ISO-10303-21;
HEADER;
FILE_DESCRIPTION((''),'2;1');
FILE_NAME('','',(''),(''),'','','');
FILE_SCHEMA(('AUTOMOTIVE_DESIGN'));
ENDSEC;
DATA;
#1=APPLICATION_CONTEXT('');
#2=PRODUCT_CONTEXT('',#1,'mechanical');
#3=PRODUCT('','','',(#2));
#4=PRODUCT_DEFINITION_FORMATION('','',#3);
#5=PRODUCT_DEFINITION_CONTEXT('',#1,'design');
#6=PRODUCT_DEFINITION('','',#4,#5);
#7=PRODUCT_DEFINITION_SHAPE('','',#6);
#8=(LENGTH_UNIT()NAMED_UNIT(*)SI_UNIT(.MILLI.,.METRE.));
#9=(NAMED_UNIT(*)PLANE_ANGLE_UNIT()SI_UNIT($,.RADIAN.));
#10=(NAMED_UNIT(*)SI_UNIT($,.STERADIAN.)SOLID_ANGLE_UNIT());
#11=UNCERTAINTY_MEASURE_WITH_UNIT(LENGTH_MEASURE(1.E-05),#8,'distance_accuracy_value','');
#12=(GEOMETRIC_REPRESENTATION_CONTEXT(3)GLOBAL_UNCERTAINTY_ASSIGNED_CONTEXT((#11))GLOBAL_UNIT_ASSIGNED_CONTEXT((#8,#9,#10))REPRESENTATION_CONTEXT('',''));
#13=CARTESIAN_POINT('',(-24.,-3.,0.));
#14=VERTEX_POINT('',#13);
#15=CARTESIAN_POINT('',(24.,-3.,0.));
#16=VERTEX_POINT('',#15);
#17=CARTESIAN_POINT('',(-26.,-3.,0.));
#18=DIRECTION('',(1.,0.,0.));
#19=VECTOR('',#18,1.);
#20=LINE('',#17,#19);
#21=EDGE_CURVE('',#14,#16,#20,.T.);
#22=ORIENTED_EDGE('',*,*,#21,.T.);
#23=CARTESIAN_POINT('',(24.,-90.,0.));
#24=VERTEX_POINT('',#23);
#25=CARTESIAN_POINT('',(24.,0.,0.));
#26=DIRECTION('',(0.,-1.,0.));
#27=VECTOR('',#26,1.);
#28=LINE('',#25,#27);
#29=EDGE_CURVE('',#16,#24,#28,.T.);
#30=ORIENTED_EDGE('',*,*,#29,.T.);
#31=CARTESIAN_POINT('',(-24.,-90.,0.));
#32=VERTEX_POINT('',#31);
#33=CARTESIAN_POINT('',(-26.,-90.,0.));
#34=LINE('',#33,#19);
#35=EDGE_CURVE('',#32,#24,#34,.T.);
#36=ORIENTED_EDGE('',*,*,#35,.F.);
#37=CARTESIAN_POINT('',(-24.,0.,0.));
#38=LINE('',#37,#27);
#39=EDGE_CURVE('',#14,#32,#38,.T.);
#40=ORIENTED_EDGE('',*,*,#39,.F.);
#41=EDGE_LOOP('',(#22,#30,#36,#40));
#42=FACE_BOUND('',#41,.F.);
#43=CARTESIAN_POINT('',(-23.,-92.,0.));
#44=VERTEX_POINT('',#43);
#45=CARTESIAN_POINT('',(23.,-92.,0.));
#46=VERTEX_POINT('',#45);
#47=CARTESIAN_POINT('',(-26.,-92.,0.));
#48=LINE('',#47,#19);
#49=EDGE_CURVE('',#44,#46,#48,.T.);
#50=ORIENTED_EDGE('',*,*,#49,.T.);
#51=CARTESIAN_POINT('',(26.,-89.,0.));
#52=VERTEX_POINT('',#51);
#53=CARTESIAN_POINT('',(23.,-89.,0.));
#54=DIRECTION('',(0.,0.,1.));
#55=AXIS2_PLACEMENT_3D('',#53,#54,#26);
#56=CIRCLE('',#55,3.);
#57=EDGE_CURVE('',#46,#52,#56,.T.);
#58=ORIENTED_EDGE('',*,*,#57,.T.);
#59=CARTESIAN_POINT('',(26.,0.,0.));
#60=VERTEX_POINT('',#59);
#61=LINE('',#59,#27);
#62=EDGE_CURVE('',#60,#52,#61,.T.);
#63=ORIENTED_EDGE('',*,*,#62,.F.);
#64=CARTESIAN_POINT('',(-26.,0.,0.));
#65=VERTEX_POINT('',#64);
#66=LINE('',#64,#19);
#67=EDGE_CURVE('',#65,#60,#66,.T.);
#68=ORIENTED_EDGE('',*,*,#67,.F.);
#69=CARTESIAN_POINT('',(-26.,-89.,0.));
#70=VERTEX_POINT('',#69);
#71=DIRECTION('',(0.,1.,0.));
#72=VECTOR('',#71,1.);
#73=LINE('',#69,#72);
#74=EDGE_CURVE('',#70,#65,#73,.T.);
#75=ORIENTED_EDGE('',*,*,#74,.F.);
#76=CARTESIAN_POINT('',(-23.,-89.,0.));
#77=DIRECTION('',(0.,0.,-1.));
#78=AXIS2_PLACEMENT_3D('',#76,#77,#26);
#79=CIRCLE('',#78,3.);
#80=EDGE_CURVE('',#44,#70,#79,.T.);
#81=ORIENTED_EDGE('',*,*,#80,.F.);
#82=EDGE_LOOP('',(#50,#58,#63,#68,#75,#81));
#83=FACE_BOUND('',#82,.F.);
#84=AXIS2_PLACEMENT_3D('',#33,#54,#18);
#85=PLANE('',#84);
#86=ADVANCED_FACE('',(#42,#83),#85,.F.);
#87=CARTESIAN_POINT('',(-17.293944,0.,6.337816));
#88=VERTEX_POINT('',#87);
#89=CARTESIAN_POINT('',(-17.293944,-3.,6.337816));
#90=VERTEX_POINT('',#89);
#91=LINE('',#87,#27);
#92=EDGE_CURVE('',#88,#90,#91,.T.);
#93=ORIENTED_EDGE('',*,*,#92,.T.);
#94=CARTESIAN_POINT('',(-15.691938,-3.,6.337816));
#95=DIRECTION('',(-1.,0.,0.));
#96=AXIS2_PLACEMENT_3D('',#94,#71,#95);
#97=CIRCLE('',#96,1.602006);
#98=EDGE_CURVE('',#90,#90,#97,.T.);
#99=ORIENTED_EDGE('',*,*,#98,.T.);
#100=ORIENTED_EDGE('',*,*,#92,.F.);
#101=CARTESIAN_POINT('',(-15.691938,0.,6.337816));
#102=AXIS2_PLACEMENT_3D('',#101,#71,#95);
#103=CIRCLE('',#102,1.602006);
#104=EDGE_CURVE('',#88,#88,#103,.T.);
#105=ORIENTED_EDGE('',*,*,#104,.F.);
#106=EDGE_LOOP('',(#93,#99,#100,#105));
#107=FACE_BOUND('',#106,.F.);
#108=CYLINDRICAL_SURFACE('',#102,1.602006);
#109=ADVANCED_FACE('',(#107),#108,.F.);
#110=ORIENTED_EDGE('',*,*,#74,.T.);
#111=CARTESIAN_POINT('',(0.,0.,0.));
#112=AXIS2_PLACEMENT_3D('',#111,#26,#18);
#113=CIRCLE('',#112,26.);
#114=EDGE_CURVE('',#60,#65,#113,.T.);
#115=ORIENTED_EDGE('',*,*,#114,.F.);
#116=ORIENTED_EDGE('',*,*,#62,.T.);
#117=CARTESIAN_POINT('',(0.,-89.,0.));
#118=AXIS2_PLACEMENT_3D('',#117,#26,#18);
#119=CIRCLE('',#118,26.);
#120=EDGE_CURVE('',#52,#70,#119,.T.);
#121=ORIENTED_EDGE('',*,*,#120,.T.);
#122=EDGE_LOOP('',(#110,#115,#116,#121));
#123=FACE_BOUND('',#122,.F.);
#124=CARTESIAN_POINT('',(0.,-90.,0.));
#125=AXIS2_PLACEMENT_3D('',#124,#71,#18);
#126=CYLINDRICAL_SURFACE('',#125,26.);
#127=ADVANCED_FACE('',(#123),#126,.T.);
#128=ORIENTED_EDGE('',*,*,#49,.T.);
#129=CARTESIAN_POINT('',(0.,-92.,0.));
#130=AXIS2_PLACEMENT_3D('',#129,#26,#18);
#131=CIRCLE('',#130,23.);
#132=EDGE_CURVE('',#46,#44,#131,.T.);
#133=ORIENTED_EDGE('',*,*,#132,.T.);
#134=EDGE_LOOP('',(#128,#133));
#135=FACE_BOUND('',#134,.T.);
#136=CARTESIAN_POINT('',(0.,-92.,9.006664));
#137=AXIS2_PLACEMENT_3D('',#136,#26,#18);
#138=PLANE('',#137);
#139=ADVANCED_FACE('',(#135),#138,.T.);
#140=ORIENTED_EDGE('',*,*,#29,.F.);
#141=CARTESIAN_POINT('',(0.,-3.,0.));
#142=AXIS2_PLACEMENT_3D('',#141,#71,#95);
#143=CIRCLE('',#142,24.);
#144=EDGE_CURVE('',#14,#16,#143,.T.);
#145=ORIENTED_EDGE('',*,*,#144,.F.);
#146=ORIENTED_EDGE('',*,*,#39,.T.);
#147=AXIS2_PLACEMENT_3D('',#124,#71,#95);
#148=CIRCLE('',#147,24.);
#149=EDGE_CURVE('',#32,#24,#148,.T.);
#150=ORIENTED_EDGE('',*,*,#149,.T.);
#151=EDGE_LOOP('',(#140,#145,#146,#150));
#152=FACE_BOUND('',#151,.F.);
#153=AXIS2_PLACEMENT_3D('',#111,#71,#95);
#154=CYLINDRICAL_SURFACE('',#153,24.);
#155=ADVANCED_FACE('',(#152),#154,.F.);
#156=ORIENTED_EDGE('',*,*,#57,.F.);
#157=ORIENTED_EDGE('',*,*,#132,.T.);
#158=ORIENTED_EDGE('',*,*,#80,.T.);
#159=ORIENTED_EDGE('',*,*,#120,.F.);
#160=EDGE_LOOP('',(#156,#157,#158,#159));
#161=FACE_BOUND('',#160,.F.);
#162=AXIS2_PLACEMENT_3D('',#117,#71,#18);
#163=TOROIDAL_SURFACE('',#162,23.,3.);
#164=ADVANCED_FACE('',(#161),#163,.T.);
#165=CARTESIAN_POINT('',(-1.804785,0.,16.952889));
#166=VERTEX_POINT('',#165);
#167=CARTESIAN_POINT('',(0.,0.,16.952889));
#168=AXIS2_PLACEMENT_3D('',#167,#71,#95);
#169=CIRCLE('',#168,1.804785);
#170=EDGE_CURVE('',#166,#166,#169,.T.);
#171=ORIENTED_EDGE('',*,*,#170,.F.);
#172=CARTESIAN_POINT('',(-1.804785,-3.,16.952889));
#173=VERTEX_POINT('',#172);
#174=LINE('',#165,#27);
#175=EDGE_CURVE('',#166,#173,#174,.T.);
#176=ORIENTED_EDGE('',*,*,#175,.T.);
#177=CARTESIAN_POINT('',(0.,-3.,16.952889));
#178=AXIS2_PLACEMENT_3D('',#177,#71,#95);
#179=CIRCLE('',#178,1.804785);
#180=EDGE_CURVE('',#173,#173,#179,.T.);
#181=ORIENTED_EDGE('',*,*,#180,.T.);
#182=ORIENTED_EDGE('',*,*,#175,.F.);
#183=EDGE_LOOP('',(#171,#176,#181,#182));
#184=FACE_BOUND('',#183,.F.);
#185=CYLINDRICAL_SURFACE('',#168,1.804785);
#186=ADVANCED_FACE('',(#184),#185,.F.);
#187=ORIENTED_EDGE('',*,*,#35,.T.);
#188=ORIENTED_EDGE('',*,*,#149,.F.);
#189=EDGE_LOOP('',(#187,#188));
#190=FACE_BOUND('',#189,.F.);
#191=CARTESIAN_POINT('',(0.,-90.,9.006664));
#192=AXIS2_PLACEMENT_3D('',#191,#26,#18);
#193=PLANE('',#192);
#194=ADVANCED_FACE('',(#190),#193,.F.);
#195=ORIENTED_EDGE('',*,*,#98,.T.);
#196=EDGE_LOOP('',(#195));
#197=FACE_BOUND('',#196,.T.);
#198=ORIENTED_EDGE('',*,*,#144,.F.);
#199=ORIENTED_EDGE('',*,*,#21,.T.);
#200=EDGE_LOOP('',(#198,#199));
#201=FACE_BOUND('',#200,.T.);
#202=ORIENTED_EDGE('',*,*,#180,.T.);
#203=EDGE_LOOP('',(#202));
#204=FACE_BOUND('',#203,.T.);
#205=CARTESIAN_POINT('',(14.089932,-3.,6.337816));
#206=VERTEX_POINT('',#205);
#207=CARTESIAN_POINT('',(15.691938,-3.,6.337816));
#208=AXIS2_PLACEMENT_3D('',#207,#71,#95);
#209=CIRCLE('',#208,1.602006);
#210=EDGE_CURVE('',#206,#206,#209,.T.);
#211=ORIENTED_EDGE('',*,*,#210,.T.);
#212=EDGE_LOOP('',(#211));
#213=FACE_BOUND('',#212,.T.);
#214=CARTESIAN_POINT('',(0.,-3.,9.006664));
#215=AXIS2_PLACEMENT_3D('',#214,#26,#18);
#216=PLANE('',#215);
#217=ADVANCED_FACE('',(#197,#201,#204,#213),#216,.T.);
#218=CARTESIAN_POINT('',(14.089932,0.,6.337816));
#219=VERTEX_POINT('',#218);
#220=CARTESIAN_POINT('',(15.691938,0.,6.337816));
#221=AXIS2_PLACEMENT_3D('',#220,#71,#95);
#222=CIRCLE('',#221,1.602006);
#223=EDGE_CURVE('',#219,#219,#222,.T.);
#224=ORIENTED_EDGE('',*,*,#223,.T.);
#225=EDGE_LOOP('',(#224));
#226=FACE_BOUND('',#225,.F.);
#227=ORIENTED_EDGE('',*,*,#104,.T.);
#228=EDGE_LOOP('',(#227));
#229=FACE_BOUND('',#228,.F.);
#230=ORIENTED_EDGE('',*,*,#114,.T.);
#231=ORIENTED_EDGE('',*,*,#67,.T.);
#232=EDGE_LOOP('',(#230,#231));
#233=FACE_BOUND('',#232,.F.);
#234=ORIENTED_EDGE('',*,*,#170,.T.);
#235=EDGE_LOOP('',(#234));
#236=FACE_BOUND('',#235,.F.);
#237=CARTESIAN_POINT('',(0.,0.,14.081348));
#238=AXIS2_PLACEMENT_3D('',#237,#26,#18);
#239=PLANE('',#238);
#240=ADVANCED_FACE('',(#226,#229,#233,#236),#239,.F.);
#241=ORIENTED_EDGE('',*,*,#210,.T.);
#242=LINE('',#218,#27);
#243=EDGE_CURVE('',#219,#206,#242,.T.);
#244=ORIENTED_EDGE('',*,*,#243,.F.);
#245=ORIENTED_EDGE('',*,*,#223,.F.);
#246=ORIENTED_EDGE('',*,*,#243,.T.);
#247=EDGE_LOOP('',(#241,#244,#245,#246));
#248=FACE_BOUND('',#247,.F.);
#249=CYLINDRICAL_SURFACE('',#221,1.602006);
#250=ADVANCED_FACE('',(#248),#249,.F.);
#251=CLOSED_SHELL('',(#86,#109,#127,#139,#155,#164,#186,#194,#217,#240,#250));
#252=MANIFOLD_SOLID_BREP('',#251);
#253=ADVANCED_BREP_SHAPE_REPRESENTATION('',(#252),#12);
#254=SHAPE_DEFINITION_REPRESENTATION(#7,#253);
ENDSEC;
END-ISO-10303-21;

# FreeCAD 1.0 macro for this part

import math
import FreeCAD as App
import Part
import Sketcher
from FreeCAD import Vector


def edges_at(feature, points):
    """Names of the edges that pass closest to the given points."""
    edges = feature.Shape.Edges
    near = lambda p: min(range(len(edges)), key=lambda i: edges[i].distToShape(Part.Vertex(*p))[0])
    return sorted({f"Edge{near(p) + 1}" for p in points})

doc = App.newDocument("Part")
body = doc.addObject("PartDesign::Body", "Body")

# Sketch on XZ plane
sketch1 = body.newObject("Sketcher::SketchObject", "Sketch")
sketch1.AttachmentSupport = (doc.getObject("XZ_Plane"), [""])
sketch1.MapMode = "FlatFace"
sketch1.addGeometry(Part.LineSegment(Vector(24, 0, 0), Vector(26, 0, 0)), False)
sketch1.addGeometry(Part.ArcOfCircle(Part.Circle(Vector(0, 0, 0), Vector(0, 0, 1), 26), math.radians(0), math.radians(180)), False)
sketch1.addGeometry(Part.LineSegment(Vector(-26, 0, 0), Vector(-24, 0, 0)), False)
sketch1.addGeometry(Part.ArcOfCircle(Part.Circle(Vector(0, 0, 0), Vector(0, 0, 1), 24), math.radians(0), math.radians(180)), False)
sketch1.addConstraint(Sketcher.Constraint("Coincident", 0, 2, 1, 1))
sketch1.addConstraint(Sketcher.Constraint("Coincident", 1, 2, 2, 1))
sketch1.addConstraint(Sketcher.Constraint("Coincident", 2, 2, 3, 2))
sketch1.addConstraint(Sketcher.Constraint("Coincident", 3, 1, 0, 1))
sketch1.addConstraint(Sketcher.Constraint("Horizontal", 0))
sketch1.addConstraint(Sketcher.Constraint("Horizontal", 2))
sketch1.addConstraint(Sketcher.Constraint("Coincident", 1, 3, -1, 1))
sketch1.addConstraint(Sketcher.Constraint("Coincident", 3, 3, -1, 1))
sketch1.addConstraint(Sketcher.Constraint("PointOnObject", 0, 2, -1))
sketch1.addConstraint(Sketcher.Constraint("PointOnObject", 1, 2, -1))
sketch1.addConstraint(Sketcher.Constraint("Radius", 1, 26.0))
sketch1.addConstraint(Sketcher.Constraint("Radius", 3, 24.0))
pad1 = body.newObject("PartDesign::Pad", "Pad")
pad1.Profile = sketch1
pad1.Length = 90

# Sketch on XZ plane
sketch2 = body.newObject("Sketcher::SketchObject", "Sketch001")
sketch2.AttachmentSupport = (doc.getObject("XZ_Plane"), [""])
sketch2.MapMode = "FlatFace"
sketch2.AttachmentOffset = App.Placement(Vector(0, 0, 90), App.Rotation())
sketch2.addGeometry(Part.LineSegment(Vector(-26, 0, 0), Vector(26, 0, 0)), False)
sketch2.addGeometry(Part.ArcOfCircle(Part.Circle(Vector(0, 0, 0), Vector(0, 0, 1), 26), math.radians(0), math.radians(180)), False)
sketch2.addConstraint(Sketcher.Constraint("Coincident", 0, 1, 1, 2))
sketch2.addConstraint(Sketcher.Constraint("Coincident", 1, 1, 0, 2))
sketch2.addConstraint(Sketcher.Constraint("Horizontal", 0))
sketch2.addConstraint(Sketcher.Constraint("Coincident", 1, 3, -1, 1))
sketch2.addConstraint(Sketcher.Constraint("PointOnObject", 0, 1, -1))
sketch2.addConstraint(Sketcher.Constraint("Radius", 1, 26.0))
pad2 = body.newObject("PartDesign::Pad", "Pad001")
pad2.Profile = sketch2
pad2.Length = 2
doc.recompute()

fillet = body.newObject("PartDesign::Fillet", "Fillet")
fillet.Base = (pad2, edges_at(pad2, [(0, -92, 26)]))
fillet.Radius = 3

# Sketch on XZ plane
sketch3 = body.newObject("Sketcher::SketchObject", "Sketch002")
sketch3.AttachmentSupport = (doc.getObject("XZ_Plane"), [""])
sketch3.MapMode = "FlatFace"
sketch3.addGeometry(Part.LineSegment(Vector(-26, 0, 0), Vector(26, 0, 0)), False)
sketch3.addGeometry(Part.ArcOfCircle(Part.Circle(Vector(0, 0, 0), Vector(0, 0, 1), 26), math.radians(0), math.radians(180)), False)
sketch3.addConstraint(Sketcher.Constraint("Coincident", 0, 1, 1, 2))
sketch3.addConstraint(Sketcher.Constraint("Coincident", 1, 1, 0, 2))
sketch3.addConstraint(Sketcher.Constraint("Horizontal", 0))
sketch3.addConstraint(Sketcher.Constraint("Coincident", 1, 3, -1, 1))
sketch3.addConstraint(Sketcher.Constraint("PointOnObject", 0, 1, -1))
sketch3.addConstraint(Sketcher.Constraint("Radius", 1, 26.0))
pad3 = body.newObject("PartDesign::Pad", "Pad002")
pad3.Profile = sketch3
pad3.Length = 3

# Sketch on XZ plane
sketch4 = body.newObject("Sketcher::SketchObject", "Sketch003")
sketch4.AttachmentSupport = (doc.getObject("XZ_Plane"), [""])
sketch4.MapMode = "FlatFace"
sketch4.addGeometry(Part.Circle(Vector(0, 16.952889, 0), Vector(0, 0, 1), 1.804785), False)
sketch4.addGeometry(Part.Circle(Vector(-15.691938, 6.337816, 0), Vector(0, 0, 1), 1.602006), False)
sketch4.addGeometry(Part.Circle(Vector(15.691938, 6.337816, 0), Vector(0, 0, 1), 1.602006), False)
sketch4.addConstraint(Sketcher.Constraint("Equal", 1, 2))
sketch4.addConstraint(Sketcher.Constraint("Symmetric", 1, 3, 2, 3, -2))
sketch4.addConstraint(Sketcher.Constraint("PointOnObject", 0, 3, -2))
sketch4.addConstraint(Sketcher.Constraint("Diameter", 0, 3.60957))
sketch4.addConstraint(Sketcher.Constraint("Diameter", 1, 3.204012))
sketch4.addConstraint(Sketcher.Constraint("DistanceY", -1, 1, 0, 3, 16.952889))
sketch4.addConstraint(Sketcher.Constraint("DistanceX", 1, 3, -1, 1, 15.691938))
sketch4.addConstraint(Sketcher.Constraint("DistanceY", -1, 1, 1, 3, 6.337816))
pocket1 = body.newObject("PartDesign::Pocket", "Pocket")
pocket1.Profile = sketch4
pocket1.Length = 3
pocket1.Reversed = True

doc.recompute()
